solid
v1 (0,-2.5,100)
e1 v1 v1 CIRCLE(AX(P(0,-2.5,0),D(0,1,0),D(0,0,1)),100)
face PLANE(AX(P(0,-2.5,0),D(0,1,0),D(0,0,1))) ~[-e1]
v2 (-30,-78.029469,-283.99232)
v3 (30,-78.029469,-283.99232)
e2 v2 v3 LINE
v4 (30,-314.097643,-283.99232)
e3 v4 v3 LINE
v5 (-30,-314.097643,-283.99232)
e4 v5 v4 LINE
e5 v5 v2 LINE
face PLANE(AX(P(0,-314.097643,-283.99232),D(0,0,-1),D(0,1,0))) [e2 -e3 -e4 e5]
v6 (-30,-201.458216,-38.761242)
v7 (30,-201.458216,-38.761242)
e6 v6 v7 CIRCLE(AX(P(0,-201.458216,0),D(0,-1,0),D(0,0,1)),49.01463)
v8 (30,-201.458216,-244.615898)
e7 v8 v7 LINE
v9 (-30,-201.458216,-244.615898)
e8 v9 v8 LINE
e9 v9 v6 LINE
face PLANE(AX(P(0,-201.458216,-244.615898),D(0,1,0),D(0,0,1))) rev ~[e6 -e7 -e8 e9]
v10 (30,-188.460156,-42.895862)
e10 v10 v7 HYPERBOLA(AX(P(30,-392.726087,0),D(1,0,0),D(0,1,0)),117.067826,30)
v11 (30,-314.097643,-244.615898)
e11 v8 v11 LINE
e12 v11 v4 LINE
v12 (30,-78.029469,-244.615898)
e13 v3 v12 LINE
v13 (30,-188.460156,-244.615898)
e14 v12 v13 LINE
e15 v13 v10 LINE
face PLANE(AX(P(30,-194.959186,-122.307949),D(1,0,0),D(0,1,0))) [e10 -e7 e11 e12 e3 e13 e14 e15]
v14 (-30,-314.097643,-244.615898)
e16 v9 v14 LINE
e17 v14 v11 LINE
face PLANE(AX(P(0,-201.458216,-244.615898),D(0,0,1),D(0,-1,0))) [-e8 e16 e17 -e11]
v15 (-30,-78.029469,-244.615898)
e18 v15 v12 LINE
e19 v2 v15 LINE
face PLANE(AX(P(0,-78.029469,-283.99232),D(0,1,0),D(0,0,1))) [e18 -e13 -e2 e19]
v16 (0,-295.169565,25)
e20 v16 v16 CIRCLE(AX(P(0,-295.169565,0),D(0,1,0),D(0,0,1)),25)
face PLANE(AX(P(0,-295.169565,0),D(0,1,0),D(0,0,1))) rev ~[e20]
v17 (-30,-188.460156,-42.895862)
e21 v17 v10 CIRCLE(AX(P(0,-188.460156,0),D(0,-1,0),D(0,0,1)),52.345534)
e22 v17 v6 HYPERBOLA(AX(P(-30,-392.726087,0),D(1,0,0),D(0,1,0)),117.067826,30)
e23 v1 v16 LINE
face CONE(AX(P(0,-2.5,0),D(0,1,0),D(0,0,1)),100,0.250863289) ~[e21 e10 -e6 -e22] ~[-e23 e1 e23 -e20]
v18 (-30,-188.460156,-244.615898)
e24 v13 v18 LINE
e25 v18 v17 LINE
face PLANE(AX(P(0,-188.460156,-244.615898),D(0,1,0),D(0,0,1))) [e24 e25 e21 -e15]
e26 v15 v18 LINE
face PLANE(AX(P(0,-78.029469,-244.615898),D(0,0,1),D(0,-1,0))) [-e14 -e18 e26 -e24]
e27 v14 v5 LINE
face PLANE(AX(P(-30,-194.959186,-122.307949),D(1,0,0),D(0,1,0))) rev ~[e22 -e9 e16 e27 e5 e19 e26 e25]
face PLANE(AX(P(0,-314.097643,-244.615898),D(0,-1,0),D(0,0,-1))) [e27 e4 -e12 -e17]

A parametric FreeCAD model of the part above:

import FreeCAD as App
import Part
import Sketcher

V = App.Vector
Q = App.Units.Quantity


def add_polygon(sketch, points):
    """Adds a closed chain of lines whose ends are joined by coincident constraints."""
    first, n = sketch.GeometryCount, len(points)
    for a, b in zip(points, points[1:] + points[:1]):
        sketch.addGeometry(Part.LineSegment(App.Vector(*a, 0), App.Vector(*b, 0)), False)
    for i in range(n):
        sketch.addConstraint(Sketcher.Constraint("Coincident", first + i, 2, first + (i + 1) % n, 1))

doc = App.newDocument("Part")
body = doc.addObject("PartDesign::Body", "Body")

# Sketch on YZ plane
sketch1 = body.newObject("Sketcher::SketchObject", "Sketch")
sketch1.AttachmentSupport = (doc.getObject("YZ_Plane"), [""])
sketch1.MapMode = "FlatFace"
add_polygon(sketch1, [(-2, 0), (-2, 100), (-295, 25), (-295, 0)])  # lines 0-3
sketch1.addConstraint([
    Sketcher.Constraint("Vertical", 0),
    Sketcher.Constraint("Vertical", 2),
    Sketcher.Constraint("Horizontal", 3),
    Sketcher.Constraint("PointOnObject", 2, 2, -1),
    Sketcher.Constraint("DistanceY", 0, 1, 0, 2, Q("100 mm")),
    Sketcher.Constraint("DistanceY", 2, 2, 2, 1, Q("25 mm")),
    Sketcher.Constraint("DistanceX", 0, 2, -1, 1, Q("2.5 mm")),
    Sketcher.Constraint("DistanceX", 3, 1, 3, 2, Q("292.669565 mm")),
])
revolution = body.newObject("PartDesign::Revolution", "Revolution")
revolution.Profile = sketch1
revolution.ReferenceAxis = (sketch1, ["H_Axis"])
revolution.Angle = 360

# Sketch on YZ plane
sketch2 = body.newObject("Sketcher::SketchObject", "Sketch001")
sketch2.AttachmentSupport = (doc.getObject("YZ_Plane"), [""])
sketch2.MapMode = "FlatFace"
add_polygon(sketch2, [(-201, 0), (-201, -245), (-314, -245), (-314, -284), (-78, -284), (-78, -245), (-188, -245), (-188, 0)])  # lines 0-7
sketch2.addConstraint([
    Sketcher.Constraint("Vertical", 0),
    Sketcher.Constraint("Horizontal", 1),
    Sketcher.Constraint("Vertical", 2),
    Sketcher.Constraint("Horizontal", 3),
    Sketcher.Constraint("Vertical", 4),
    Sketcher.Constraint("Horizontal", 5),
    Sketcher.Constraint("Vertical", 6),
    Sketcher.Constraint("Horizontal", 7),
    Sketcher.Constraint("PointOnObject", 6, 2, -1),
    Sketcher.Constraint("Horizontal", 1, 2, 4, 2),
    Sketcher.Constraint("DistanceX", 7, 2, 7, 1, Q("12.99806 mm")),
    Sketcher.Constraint("DistanceX", 1, 2, 1, 1, Q("112.639427 mm")),
    Sketcher.Constraint("DistanceX", 3, 1, 3, 2, Q("236.068174 mm")),
    Sketcher.Constraint("DistanceY", 0, 2, 0, 1, Q("244.615898 mm")),
    Sketcher.Constraint("DistanceY", 2, 2, 2, 1, Q("39.376422 mm")),
    Sketcher.Constraint("DistanceX", 3, 2, -1, 1, Q("78.029469 mm")),
])
pad1 = body.newObject("PartDesign::Pad", "Pad")
pad1.Profile = sketch2
pad1.Length = 60
pad1.Midplane = True

doc.recompute()
